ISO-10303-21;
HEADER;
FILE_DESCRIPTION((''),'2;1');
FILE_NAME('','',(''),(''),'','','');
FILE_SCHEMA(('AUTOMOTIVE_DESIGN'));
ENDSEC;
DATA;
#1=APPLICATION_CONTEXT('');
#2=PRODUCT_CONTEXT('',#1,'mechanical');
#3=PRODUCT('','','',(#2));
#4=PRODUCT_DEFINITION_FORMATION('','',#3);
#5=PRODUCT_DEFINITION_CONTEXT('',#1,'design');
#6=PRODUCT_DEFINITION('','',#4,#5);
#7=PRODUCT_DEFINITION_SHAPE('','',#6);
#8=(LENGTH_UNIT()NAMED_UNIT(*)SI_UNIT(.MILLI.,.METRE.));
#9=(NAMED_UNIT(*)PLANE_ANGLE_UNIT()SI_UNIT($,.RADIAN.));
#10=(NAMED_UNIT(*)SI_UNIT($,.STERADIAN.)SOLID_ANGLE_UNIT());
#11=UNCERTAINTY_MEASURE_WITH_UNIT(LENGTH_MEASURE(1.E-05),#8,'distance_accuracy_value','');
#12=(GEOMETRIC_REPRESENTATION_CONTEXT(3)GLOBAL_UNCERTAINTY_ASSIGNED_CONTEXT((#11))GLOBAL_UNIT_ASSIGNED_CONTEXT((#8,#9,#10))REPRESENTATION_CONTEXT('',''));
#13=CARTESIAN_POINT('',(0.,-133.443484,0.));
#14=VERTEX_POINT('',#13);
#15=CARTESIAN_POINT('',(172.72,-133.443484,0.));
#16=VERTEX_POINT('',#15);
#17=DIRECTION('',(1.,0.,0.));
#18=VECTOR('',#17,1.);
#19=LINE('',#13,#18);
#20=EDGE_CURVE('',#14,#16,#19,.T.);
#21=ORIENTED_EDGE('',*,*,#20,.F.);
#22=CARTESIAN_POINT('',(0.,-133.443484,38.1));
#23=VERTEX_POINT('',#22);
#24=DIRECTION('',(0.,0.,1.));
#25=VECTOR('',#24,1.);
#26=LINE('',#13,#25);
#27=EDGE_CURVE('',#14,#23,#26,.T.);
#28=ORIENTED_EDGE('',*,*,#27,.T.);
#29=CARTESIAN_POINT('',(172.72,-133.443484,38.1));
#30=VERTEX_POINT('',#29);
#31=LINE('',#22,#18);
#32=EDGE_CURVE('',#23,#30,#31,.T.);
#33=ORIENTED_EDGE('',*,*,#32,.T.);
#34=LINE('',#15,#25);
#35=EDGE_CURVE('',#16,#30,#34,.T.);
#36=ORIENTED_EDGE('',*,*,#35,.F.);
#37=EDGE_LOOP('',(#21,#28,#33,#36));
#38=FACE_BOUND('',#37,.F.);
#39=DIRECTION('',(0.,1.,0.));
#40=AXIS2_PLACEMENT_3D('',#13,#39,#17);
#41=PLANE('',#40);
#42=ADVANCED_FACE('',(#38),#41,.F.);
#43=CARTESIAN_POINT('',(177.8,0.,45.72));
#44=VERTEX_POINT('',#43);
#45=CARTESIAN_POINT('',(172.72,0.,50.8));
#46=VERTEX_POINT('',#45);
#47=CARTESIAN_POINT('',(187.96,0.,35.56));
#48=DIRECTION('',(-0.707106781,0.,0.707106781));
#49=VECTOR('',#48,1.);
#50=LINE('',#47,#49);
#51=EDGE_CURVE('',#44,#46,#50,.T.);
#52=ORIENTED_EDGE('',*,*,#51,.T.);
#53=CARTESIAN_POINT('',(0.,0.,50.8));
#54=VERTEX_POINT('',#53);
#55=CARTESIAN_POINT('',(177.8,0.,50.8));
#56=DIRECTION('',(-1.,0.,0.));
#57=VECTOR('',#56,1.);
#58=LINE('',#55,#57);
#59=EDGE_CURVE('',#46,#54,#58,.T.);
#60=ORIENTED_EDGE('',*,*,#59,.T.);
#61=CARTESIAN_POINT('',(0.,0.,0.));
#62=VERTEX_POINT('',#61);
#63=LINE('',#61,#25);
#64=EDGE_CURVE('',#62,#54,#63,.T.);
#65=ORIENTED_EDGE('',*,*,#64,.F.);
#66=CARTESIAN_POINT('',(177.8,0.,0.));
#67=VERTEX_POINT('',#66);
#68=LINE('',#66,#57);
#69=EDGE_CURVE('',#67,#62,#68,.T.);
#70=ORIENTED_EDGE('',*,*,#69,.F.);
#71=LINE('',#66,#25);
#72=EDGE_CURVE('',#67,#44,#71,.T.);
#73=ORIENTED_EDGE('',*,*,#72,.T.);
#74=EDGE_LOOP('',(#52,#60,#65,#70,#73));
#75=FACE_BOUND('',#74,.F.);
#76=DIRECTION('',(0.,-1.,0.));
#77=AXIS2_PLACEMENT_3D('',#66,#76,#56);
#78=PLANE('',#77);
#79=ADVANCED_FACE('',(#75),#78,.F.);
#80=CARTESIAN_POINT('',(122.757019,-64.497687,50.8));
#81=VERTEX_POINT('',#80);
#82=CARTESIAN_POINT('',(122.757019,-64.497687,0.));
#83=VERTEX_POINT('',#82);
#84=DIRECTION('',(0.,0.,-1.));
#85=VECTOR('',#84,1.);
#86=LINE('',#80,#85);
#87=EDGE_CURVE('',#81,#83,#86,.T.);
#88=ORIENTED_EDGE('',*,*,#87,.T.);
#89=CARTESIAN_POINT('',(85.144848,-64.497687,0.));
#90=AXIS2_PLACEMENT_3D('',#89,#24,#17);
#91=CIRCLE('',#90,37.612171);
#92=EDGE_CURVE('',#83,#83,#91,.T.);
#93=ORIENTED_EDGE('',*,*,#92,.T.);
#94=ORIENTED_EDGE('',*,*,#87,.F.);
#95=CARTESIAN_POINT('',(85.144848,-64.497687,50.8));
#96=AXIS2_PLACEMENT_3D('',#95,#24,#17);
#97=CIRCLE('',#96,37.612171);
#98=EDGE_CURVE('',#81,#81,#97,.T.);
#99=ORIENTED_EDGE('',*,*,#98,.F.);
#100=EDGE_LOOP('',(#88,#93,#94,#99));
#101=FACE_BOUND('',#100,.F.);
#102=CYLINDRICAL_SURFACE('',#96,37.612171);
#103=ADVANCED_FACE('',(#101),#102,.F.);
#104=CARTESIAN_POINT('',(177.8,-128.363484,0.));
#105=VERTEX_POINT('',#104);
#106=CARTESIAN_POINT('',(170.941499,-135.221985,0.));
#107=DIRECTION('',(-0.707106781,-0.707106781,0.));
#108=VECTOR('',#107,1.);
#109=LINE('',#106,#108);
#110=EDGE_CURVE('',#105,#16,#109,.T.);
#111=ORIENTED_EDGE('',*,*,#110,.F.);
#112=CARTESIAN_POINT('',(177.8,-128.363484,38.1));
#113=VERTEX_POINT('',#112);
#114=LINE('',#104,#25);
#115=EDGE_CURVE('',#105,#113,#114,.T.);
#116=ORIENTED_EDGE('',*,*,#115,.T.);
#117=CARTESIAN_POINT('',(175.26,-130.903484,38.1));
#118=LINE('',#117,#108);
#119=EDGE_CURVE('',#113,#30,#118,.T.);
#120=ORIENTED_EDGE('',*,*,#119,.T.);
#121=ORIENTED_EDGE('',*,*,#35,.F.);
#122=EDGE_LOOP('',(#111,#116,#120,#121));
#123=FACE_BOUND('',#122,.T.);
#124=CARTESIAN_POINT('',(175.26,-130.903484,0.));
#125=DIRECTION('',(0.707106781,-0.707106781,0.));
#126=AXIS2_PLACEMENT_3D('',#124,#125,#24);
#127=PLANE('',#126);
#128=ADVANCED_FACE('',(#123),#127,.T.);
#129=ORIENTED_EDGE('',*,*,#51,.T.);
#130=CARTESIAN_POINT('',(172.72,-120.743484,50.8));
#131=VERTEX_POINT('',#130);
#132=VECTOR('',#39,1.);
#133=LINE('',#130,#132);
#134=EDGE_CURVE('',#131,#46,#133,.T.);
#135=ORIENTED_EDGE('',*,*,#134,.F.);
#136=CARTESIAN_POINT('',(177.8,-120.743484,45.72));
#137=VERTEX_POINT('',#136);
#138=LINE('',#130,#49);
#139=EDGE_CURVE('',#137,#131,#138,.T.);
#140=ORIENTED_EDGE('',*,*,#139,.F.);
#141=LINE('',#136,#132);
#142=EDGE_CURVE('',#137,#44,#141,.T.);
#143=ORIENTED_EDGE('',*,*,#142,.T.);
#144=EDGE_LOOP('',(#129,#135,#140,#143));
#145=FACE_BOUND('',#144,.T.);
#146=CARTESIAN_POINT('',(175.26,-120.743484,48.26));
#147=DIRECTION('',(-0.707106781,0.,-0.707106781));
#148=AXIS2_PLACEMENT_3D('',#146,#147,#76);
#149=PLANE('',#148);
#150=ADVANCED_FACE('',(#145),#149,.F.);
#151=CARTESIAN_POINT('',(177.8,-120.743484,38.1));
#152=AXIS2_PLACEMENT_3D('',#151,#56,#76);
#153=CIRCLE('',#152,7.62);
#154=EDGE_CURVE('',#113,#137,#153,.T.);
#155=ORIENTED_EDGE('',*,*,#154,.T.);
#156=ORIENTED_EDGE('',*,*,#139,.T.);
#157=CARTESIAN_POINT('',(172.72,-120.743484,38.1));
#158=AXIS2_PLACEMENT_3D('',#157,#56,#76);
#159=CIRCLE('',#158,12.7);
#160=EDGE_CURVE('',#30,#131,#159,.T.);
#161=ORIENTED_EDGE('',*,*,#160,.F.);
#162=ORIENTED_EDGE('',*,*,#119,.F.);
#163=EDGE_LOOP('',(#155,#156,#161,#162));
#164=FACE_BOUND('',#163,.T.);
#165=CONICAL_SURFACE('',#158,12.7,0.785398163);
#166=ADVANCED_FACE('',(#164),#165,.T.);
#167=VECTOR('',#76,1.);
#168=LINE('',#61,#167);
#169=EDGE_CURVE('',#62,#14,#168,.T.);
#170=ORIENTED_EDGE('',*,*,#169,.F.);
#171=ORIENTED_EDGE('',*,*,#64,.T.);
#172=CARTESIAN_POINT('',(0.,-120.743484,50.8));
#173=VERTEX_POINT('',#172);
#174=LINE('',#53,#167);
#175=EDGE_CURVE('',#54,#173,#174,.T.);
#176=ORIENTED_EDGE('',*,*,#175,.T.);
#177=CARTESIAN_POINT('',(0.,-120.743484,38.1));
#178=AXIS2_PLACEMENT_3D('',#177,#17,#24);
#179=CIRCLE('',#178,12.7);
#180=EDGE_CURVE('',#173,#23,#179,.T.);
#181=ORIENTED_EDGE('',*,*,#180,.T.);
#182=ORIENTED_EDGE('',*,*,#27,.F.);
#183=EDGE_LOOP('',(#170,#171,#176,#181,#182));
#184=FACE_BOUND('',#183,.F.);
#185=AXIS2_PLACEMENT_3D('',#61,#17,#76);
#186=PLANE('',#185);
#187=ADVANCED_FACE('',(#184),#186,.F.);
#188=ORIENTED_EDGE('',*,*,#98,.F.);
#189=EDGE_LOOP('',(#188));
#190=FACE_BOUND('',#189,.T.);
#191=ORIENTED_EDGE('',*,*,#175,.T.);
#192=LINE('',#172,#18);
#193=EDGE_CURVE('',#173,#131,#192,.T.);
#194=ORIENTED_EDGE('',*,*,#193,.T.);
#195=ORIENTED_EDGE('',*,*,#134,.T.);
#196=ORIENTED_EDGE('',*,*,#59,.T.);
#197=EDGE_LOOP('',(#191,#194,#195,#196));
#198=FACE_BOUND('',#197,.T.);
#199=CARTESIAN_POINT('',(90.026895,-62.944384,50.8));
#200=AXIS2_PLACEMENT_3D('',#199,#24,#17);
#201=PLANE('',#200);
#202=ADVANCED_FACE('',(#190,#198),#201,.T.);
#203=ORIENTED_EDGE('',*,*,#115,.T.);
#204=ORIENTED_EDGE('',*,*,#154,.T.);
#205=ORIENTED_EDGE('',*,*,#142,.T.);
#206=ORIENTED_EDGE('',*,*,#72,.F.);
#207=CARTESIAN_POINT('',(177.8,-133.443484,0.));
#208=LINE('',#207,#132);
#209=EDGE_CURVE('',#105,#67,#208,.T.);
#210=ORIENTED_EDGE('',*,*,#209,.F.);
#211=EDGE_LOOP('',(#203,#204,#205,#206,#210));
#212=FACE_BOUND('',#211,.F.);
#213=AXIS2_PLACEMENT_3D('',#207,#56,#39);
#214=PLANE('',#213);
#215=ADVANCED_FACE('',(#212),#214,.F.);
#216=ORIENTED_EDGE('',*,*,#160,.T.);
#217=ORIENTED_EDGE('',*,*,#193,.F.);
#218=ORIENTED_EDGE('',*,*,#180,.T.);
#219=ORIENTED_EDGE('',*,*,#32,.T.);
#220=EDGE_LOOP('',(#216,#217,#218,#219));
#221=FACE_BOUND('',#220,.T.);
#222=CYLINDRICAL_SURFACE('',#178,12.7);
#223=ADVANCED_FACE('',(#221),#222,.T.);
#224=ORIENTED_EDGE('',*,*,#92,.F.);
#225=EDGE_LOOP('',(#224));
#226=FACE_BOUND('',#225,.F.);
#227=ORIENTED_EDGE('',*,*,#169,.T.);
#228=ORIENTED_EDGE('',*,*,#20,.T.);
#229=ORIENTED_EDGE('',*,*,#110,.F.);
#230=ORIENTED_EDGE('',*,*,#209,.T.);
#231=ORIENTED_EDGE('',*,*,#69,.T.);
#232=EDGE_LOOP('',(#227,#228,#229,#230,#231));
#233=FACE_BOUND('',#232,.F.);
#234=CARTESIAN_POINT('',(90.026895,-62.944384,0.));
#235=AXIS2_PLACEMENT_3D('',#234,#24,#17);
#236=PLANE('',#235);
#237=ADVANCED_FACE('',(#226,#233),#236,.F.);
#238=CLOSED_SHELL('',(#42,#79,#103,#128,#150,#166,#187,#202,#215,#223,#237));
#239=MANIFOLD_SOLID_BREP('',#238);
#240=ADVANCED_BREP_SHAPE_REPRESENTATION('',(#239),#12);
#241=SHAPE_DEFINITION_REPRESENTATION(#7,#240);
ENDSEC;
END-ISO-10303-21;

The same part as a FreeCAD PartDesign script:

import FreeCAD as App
import Part
import Sketcher

V = App.Vector
Q = App.Units.Quantity


def edges_at(feature, points):
    """Names of the edges that pass closest to the given points."""
    edges = feature.Shape.Edges
    near = lambda p: min(range(len(edges)), key=lambda i: edges[i].distToShape(Part.Vertex(*p))[0])
    return sorted({f"Edge{near(p) + 1}" for p in points})


def add_polygon(sketch, points):
    """Adds a closed chain of lines whose ends are joined by coincident constraints."""
    first, n = sketch.GeometryCount, len(points)
    for a, b in zip(points, points[1:] + points[:1]):
        sketch.addGeometry(Part.LineSegment(App.Vector(*a, 0), App.Vector(*b, 0)), False)
    for i in range(n):
        sketch.addConstraint(Sketcher.Constraint("Coincident", first + i, 2, first + (i + 1) % n, 1))

doc = App.newDocument("Part")
body = doc.addObject("PartDesign::Body", "Body")

# Sketch on XY plane
sketch1 = body.newObject("Sketcher::SketchObject", "Sketch")
sketch1.AttachmentSupport = (doc.getObject("XY_Plane"), [""])
sketch1.MapMode = "FlatFace"
add_polygon(sketch1, [(178, 0), (0, 0), (0, -133), (178, -133)])  # lines 0-3
sketch1.addConstraint([
    Sketcher.Constraint("Horizontal", 0),
    Sketcher.Constraint("Vertical", 1),
    Sketcher.Constraint("Horizontal", 2),
    Sketcher.Constraint("Vertical", 3),
    Sketcher.Constraint("Coincident", 0, 2, -1, 1),
    Sketcher.Constraint("DistanceX", 0, 2, 0, 1, Q("7 in")),
    Sketcher.Constraint("DistanceY", 1, 2, 1, 1, 133.443484),
])
pad1 = body.newObject("PartDesign::Pad", "Pad")
pad1.Profile = sketch1
pad1.Length = Q("2 in")

# Sketch on XY plane
sketch2 = body.newObject("Sketcher::SketchObject", "Sketch001")
sketch2.AttachmentSupport = (doc.getObject("XY_Plane"), [""])
sketch2.MapMode = "FlatFace"
sketch2.AttachmentOffset = App.Placement(V(0, 0, 2 * 25.4), App.Rotation())
sketch2.addGeometry(Part.Circle(V(85, -64, 0), V(0, 0, 1), 38), False)
sketch2.addConstraint([
    Sketcher.Constraint("Diameter", 0, 75.224342),
    Sketcher.Constraint("DistanceX", -1, 1, 0, 3, 85.144848),
    Sketcher.Constraint("DistanceY", 0, 3, -1, 1, 64.497687),
])
pocket1 = body.newObject("PartDesign::Pocket", "Pocket")
pocket1.Profile = sketch2
pocket1.Type = "ThroughAll"
doc.recompute()

fillet = body.newObject("PartDesign::Fillet", "Fillet")
fillet.Base = (pocket1, edges_at(pocket1, [(88.9, -133.443, 50.8)]))
fillet.Radius = Q("0.5 in")
doc.recompute()

chamfer = body.newObject("PartDesign::Chamfer", "Chamfer")
chamfer.Base = (fillet, edges_at(fillet, [(177.8, -60.372, 50.8)]))
chamfer.Size = Q("0.2 in")

doc.recompute()
